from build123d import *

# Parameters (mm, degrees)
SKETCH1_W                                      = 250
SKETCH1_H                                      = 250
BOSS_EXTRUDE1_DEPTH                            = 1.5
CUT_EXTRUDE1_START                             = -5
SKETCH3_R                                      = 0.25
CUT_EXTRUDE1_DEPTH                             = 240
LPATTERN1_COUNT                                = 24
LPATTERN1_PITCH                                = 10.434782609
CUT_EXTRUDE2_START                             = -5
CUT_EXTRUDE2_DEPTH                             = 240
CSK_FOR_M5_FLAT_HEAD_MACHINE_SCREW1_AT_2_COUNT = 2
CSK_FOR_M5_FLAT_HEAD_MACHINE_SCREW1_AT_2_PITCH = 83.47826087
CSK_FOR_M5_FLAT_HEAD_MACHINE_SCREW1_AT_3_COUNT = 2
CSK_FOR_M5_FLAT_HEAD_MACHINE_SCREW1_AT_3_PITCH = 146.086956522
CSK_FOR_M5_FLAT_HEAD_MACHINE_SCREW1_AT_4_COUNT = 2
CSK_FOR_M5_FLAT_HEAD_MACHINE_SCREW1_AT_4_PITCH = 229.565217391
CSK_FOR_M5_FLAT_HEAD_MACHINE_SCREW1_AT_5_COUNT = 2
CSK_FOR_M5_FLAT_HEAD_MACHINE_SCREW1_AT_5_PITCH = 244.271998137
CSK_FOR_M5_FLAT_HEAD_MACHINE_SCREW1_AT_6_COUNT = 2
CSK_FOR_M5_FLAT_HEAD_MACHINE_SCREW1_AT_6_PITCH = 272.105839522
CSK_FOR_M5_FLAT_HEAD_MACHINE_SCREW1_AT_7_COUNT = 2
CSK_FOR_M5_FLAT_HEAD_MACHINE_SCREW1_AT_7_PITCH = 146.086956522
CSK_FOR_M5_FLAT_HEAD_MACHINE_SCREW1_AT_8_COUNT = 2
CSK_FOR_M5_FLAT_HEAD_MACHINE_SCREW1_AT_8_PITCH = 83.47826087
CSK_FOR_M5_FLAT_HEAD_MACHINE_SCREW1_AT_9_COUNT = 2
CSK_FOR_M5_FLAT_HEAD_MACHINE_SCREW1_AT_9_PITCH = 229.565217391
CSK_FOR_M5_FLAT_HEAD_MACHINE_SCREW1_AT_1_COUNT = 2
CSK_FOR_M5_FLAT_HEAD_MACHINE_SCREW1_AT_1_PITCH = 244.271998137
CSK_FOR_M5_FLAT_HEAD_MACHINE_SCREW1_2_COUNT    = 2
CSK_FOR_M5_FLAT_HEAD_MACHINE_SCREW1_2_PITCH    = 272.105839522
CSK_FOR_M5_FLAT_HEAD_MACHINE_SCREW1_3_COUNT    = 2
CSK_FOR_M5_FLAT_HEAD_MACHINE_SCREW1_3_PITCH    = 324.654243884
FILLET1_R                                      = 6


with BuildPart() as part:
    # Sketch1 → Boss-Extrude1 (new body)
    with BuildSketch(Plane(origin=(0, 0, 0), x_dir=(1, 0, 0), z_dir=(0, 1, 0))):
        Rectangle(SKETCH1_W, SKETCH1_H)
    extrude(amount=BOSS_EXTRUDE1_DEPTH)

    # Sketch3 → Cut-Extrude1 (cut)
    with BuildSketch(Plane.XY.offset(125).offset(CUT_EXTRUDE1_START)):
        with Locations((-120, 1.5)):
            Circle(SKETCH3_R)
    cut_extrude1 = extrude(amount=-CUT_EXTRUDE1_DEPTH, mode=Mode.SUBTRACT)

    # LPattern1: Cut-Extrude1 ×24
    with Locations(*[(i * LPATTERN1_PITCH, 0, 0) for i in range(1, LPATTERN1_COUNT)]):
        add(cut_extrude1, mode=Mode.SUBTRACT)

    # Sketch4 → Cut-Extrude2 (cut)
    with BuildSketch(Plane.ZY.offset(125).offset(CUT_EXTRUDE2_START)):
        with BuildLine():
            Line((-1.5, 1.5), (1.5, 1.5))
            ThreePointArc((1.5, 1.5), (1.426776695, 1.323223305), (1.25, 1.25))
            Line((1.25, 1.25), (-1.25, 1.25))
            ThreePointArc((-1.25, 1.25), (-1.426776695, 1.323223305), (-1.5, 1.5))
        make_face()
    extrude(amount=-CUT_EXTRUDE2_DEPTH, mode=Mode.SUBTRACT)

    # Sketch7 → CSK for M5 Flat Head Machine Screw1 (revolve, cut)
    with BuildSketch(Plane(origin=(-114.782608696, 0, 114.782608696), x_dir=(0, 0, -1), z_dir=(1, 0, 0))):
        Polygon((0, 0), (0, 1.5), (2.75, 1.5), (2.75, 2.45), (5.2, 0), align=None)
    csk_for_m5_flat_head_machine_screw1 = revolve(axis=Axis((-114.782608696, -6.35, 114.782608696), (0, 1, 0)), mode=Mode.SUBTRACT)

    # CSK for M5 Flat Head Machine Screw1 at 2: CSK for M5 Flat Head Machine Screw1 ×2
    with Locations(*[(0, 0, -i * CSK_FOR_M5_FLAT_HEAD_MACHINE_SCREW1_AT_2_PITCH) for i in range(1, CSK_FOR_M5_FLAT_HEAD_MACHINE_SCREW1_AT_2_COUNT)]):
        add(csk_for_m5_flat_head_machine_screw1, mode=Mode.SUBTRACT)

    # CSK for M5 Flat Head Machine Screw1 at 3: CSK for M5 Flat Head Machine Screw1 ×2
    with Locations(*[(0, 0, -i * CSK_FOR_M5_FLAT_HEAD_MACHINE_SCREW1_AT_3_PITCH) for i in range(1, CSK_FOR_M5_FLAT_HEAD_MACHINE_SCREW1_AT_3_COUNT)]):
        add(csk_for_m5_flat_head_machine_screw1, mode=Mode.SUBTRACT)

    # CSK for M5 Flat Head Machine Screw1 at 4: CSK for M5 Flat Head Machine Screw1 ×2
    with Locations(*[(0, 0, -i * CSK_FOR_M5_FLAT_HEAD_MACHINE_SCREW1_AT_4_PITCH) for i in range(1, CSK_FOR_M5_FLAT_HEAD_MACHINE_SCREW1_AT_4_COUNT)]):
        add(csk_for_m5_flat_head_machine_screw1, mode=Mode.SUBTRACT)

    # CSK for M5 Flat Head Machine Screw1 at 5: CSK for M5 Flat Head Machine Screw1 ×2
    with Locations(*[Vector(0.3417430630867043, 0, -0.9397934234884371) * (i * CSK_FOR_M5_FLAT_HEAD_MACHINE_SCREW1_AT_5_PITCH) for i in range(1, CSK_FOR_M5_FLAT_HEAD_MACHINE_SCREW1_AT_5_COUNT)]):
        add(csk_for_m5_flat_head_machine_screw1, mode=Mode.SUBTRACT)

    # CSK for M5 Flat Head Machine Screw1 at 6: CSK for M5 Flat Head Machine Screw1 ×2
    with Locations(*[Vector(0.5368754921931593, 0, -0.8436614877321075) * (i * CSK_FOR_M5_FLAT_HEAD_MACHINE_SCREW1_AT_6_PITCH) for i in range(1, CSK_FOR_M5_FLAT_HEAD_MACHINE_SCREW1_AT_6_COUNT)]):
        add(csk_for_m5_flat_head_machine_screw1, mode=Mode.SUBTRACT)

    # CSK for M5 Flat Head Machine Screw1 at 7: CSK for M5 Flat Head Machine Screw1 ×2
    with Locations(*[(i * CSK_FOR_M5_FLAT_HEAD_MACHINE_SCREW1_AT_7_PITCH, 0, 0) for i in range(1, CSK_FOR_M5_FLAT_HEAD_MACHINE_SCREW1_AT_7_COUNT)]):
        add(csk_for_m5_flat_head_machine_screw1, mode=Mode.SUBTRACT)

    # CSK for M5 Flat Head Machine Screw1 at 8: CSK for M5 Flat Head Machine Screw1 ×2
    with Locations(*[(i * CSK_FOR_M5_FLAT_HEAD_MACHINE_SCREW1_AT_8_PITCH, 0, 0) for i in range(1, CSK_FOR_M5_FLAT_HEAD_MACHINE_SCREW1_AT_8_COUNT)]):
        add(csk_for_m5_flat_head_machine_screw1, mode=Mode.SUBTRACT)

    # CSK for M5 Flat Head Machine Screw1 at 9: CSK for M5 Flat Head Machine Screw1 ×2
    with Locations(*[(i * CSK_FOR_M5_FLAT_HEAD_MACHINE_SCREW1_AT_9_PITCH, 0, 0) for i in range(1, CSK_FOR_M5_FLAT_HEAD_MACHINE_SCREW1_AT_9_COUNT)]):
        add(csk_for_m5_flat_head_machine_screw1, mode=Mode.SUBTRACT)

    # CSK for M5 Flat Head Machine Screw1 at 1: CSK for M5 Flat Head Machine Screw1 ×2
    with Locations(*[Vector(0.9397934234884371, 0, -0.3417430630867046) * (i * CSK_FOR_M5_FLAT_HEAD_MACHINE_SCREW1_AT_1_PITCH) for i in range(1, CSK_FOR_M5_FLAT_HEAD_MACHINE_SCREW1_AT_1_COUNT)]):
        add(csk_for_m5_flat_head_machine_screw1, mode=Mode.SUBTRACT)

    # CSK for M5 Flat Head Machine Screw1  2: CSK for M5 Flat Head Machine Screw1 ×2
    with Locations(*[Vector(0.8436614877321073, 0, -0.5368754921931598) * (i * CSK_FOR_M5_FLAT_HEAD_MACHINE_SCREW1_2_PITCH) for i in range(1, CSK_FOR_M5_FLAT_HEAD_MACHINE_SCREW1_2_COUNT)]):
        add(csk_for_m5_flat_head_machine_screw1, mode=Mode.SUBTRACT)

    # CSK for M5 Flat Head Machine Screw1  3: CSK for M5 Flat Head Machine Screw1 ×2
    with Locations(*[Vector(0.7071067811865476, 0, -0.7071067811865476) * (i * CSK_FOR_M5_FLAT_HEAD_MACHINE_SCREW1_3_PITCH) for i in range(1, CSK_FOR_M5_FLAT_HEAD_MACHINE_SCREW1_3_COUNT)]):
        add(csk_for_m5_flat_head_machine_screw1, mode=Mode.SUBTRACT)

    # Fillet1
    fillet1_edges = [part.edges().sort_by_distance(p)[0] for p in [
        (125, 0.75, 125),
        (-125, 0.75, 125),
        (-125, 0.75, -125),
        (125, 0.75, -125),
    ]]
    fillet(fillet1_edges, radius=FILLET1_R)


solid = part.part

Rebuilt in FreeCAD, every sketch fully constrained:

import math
import FreeCAD as App
import Part
import Sketcher
from FreeCAD import Vector
Q = App.Units.Quantity


def edges_at(feature, points):
    """Names of the edges that pass closest to the given points."""
    edges = feature.Shape.Edges
    near = lambda p: min(range(len(edges)), key=lambda i: edges[i].distToShape(Part.Vertex(*p))[0])
    return sorted({f"Edge{near(p) + 1}" for p in points})

doc = App.newDocument("Part")
body = doc.addObject("PartDesign::Body", "Body")

sketch1 = body.newObject("Sketcher::SketchObject", "Sketch")
sketch1.AttachmentSupport = (doc.getObject("XZ_Plane"), [""])
sketch1.MapMode = "FlatFace"
sketch1.addGeometry(Part.LineSegment(Vector(-125, -125, 0), Vector(-125, 125, 0)), False)
sketch1.addGeometry(Part.LineSegment(Vector(-125, 125, 0), Vector(125, 125, 0)), False)
sketch1.addGeometry(Part.LineSegment(Vector(125, 125, 0), Vector(125, -125, 0)), False)
sketch1.addGeometry(Part.LineSegment(Vector(125, -125, 0), Vector(-125, -125, 0)), False)
sketch1.addConstraint(Sketcher.Constraint("Coincident", 0, 2, 1, 1))
sketch1.addConstraint(Sketcher.Constraint("Coincident", 1, 2, 2, 1))
sketch1.addConstraint(Sketcher.Constraint("Coincident", 2, 2, 3, 1))
sketch1.addConstraint(Sketcher.Constraint("Coincident", 3, 2, 0, 1))
sketch1.addConstraint(Sketcher.Constraint("Vertical", 0))
sketch1.addConstraint(Sketcher.Constraint("Horizontal", 1))
sketch1.addConstraint(Sketcher.Constraint("Vertical", 2))
sketch1.addConstraint(Sketcher.Constraint("Horizontal", 3))
sketch1.addConstraint(Sketcher.Constraint("Symmetric", 0, 2, 2, 2, -1, 1))
sketch1.addConstraint(Sketcher.Constraint("Equal", 3, 0))
sketch1.addConstraint(Sketcher.Constraint("DistanceX", 1, 1, 1, 2, Q("250 mm")))
pad1 = body.newObject("PartDesign::Pad", "Pad")
pad1.Profile = sketch1
pad1.Length = 1.5
pad1.Reversed = True

sketch2 = body.newObject("Sketcher::SketchObject", "Sketch001")
sketch2.AttachmentSupport = (doc.getObject("XY_Plane"), [""])
sketch2.MapMode = "FlatFace"
sketch2.AttachmentOffset = App.Placement(Vector(0, 0, 120), App.Rotation())
sketch2.addGeometry(Part.Circle(Vector(-120, 1.5, 0), Vector(0, 0, 1), 0.25), False)
sketch2.addConstraint(Sketcher.Constraint("Diameter", 0, Q("0.5 mm")))
sketch2.addConstraint(Sketcher.Constraint("DistanceX", 0, 3, -1, 1, Q("120 mm")))
sketch2.addConstraint(Sketcher.Constraint("DistanceY", -1, 1, 0, 3, Q("1.5 mm")))
pocket1 = body.newObject("PartDesign::Pocket", "Pocket")
pocket1.Profile = sketch2
pocket1.Length = 240
doc.recompute()

linearpattern = body.newObject("PartDesign::LinearPattern", "LinearPattern")
linearpattern.Originals = [pocket1]
linearpattern.Direction = (doc.getObject("X_Axis"), [""])
linearpattern.Mode = "offset"
linearpattern.Offset = 10.434783
linearpattern.Occurrences = 24
body.Tip = linearpattern

sketch3 = body.newObject("Sketcher::SketchObject", "Sketch002")
sketch3.AttachmentSupport = (doc.getObject("YZ_Plane"), [""])
sketch3.MapMode = "FlatFace"
sketch3.AttachmentOffset = App.Placement(Vector(0, 0, -120), App.Rotation())
sketch3.addGeometry(Part.LineSegment(Vector(1.5, 1.5, 0), Vector(1.5, -1.5, 0)), False)
sketch3.addGeometry(Part.ArcOfCircle(Part.Circle(Vector(1.5, -1.25, 0), Vector(0, 0, 1), 0.25), math.radians(-180), math.radians(-90)), False)
sketch3.addGeometry(Part.LineSegment(Vector(1.25, -1.25, 0), Vector(1.25, 1.25, 0)), False)
sketch3.addGeometry(Part.ArcOfCircle(Part.Circle(Vector(1.5, 1.25, 0), Vector(0, 0, 1), 0.25), math.radians(90), math.radians(180)), False)
sketch3.addConstraint(Sketcher.Constraint("Coincident", 0, 2, 1, 2))
sketch3.addConstraint(Sketcher.Constraint("Tangent", 1, 1, 2, 1))
sketch3.addConstraint(Sketcher.Constraint("Tangent", 2, 2, 3, 2))
sketch3.addConstraint(Sketcher.Constraint("Coincident", 3, 1, 0, 1))
sketch3.addConstraint(Sketcher.Constraint("Vertical", 0))
sketch3.addConstraint(Sketcher.Constraint("Vertical", 2))
sketch3.addConstraint(Sketcher.Constraint("Equal", 1, 3))
sketch3.addConstraint(Sketcher.Constraint("Vertical", 3, 3, 0, 2))
sketch3.addConstraint(Sketcher.Constraint("DistanceY", 0, 2, 0, 1, Q("3 mm")))
sketch3.addConstraint(Sketcher.Constraint("Radius", 1, Q("0.25 mm")))
sketch3.addConstraint(Sketcher.Constraint("DistanceX", -1, 1, 1, 3, Q("1.5 mm")))
sketch3.addConstraint(Sketcher.Constraint("DistanceY", 0, 2, -1, 1, Q("1.5 mm")))
pocket2 = body.newObject("PartDesign::Pocket", "Pocket001")
pocket2.Profile = sketch3
pocket2.Length = 240
pocket2.Reversed = True

sketch4 = body.newObject("Sketcher::SketchObject", "Sketch003")
sketch4.AttachmentSupport = (doc.getObject("YZ_Plane"), [""])
sketch4.MapMode = "FlatFace"
sketch4.AttachmentOffset = App.Placement(Vector(0, 0, -114.782609), App.Rotation())
sketch4.addGeometry(Part.LineSegment(Vector(1.5, 114.8, 0), Vector(0, 114.8, 0)), False)
sketch4.addGeometry(Part.LineSegment(Vector(0, 114.8, 0), Vector(0, 109.6, 0)), False)
sketch4.addGeometry(Part.LineSegment(Vector(0, 109.6, 0), Vector(2.5, 112, 0)), False)
sketch4.addGeometry(Part.LineSegment(Vector(2.5, 112, 0), Vector(1.5, 112, 0)), False)
sketch4.addGeometry(Part.LineSegment(Vector(1.5, 112, 0), Vector(1.5, 114.8, 0)), False)
sketch4.addGeometry(Part.LineSegment(Vector(0, 114.8, 0), Vector(2.5, 114.8, 0)), True)
sketch4.addConstraint(Sketcher.Constraint("Coincident", 0, 2, 1, 1))
sketch4.addConstraint(Sketcher.Constraint("Coincident", 1, 2, 2, 1))
sketch4.addConstraint(Sketcher.Constraint("Coincident", 2, 2, 3, 1))
sketch4.addConstraint(Sketcher.Constraint("Coincident", 3, 2, 4, 1))
sketch4.addConstraint(Sketcher.Constraint("Coincident", 4, 2, 0, 1))
sketch4.addConstraint(Sketcher.Constraint("Horizontal", 0))
sketch4.addConstraint(Sketcher.Constraint("Vertical", 1))
sketch4.addConstraint(Sketcher.Constraint("Horizontal", 3))
sketch4.addConstraint(Sketcher.Constraint("Vertical", 4))
sketch4.addConstraint(Sketcher.Constraint("Horizontal", 5))
sketch4.addConstraint(Sketcher.Constraint("Coincident", 5, 1, 0, 2))
sketch4.addConstraint(Sketcher.Constraint("PointOnObject", 0, 2, -2))
sketch4.addConstraint(Sketcher.Constraint("Vertical", 2, 2, 5, 2))
sketch4.addConstraint(Sketcher.Constraint("Angle", 2, Q("45 deg")))
sketch4.addConstraint(Sketcher.Constraint("DistanceX", 0, 2, 0, 1, Q("1.5 mm")))
sketch4.addConstraint(Sketcher.Constraint("DistanceY", 1, 2, 1, 1, Q("5.2 mm")))
sketch4.addConstraint(Sketcher.Constraint("DistanceX", 3, 2, 3, 1, Q("0.95 mm")))
sketch4.addConstraint(Sketcher.Constraint("DistanceY", -1, 1, 0, 2, Q("114.782609 mm")))
groove = body.newObject("PartDesign::Groove", "Groove")
groove.Profile = sketch4
groove.ReferenceAxis = (sketch4, ["Axis0"])
groove.Angle = 360
doc.recompute()

linearpattern2 = body.newObject("PartDesign::LinearPattern", "LinearPattern001")
linearpattern2.Originals = [groove]
linearpattern2.Direction = (doc.getObject("Z_Axis"), [""])
linearpattern2.Mode = "offset"
linearpattern2.Offset = 83.478261
linearpattern2.Occurrences = 2
linearpattern2.Reversed = True
body.Tip = linearpattern2
doc.recompute()

linearpattern3 = body.newObject("PartDesign::LinearPattern", "LinearPattern002")
linearpattern3.Originals = [groove]
linearpattern3.Direction = (doc.getObject("Z_Axis"), [""])
linearpattern3.Mode = "offset"
linearpattern3.Offset = 146.086957
linearpattern3.Occurrences = 2
linearpattern3.Reversed = True
body.Tip = linearpattern3
doc.recompute()

linearpattern4 = body.newObject("PartDesign::LinearPattern", "LinearPattern003")
linearpattern4.Originals = [groove]
linearpattern4.Direction = (doc.getObject("Z_Axis"), [""])
linearpattern4.Mode = "offset"
linearpattern4.Offset = 229.565217
linearpattern4.Occurrences = 2
linearpattern4.Reversed = True
body.Tip = linearpattern4
doc.recompute()

datumline = body.newObject("PartDesign::Line", "DatumLine")
datumline.Placement = App.Placement(Vector(0, 0, 0), App.Rotation(Vector(0, 0, 1), Vector(0.341743063, 0, -0.939793423)))
linearpattern5 = body.newObject("PartDesign::LinearPattern", "LinearPattern004")
linearpattern5.Originals = [groove]
linearpattern5.Direction = (datumline, [""])
linearpattern5.Mode = "offset"
linearpattern5.Offset = 244.271998
linearpattern5.Occurrences = 2
body.Tip = linearpattern5
doc.recompute()

datumline2 = body.newObject("PartDesign::Line", "DatumLine001")
datumline2.Placement = App.Placement(Vector(0, 0, 0), App.Rotation(Vector(0, 0, 1), Vector(0.536875492, 0, -0.843661488)))
linearpattern6 = body.newObject("PartDesign::LinearPattern", "LinearPattern005")
linearpattern6.Originals = [groove]
linearpattern6.Direction = (datumline2, [""])
linearpattern6.Mode = "offset"
linearpattern6.Offset = 272.10584
linearpattern6.Occurrences = 2
body.Tip = linearpattern6
doc.recompute()

linearpattern7 = body.newObject("PartDesign::LinearPattern", "LinearPattern006")
linearpattern7.Originals = [groove]
linearpattern7.Direction = (doc.getObject("X_Axis"), [""])
linearpattern7.Mode = "offset"
linearpattern7.Offset = 146.086957
linearpattern7.Occurrences = 2
body.Tip = linearpattern7
doc.recompute()

linearpattern8 = body.newObject("PartDesign::LinearPattern", "LinearPattern007")
linearpattern8.Originals = [groove]
linearpattern8.Direction = (doc.getObject("X_Axis"), [""])
linearpattern8.Mode = "offset"
linearpattern8.Offset = 83.478261
linearpattern8.Occurrences = 2
body.Tip = linearpattern8
doc.recompute()

linearpattern9 = body.newObject("PartDesign::LinearPattern", "LinearPattern008")
linearpattern9.Originals = [groove]
linearpattern9.Direction = (doc.getObject("X_Axis"), [""])
linearpattern9.Mode = "offset"
linearpattern9.Offset = 229.565217
linearpattern9.Occurrences = 2
body.Tip = linearpattern9
doc.recompute()

datumline3 = body.newObject("PartDesign::Line", "DatumLine002")
datumline3.Placement = App.Placement(Vector(0, 0, 0), App.Rotation(Vector(0, 0, 1), Vector(0.939793423, 0, -0.341743063)))
linearpattern10 = body.newObject("PartDesign::LinearPattern", "LinearPattern009")
linearpattern10.Originals = [groove]
linearpattern10.Direction = (datumline3, [""])
linearpattern10.Mode = "offset"
linearpattern10.Offset = 244.271998
linearpattern10.Occurrences = 2
body.Tip = linearpattern10
doc.recompute()

datumline4 = body.newObject("PartDesign::Line", "DatumLine003")
datumline4.Placement = App.Placement(Vector(0, 0, 0), App.Rotation(Vector(0, 0, 1), Vector(0.843661488, 0, -0.536875492)))
linearpattern11 = body.newObject("PartDesign::LinearPattern", "LinearPattern010")
linearpattern11.Originals = [groove]
linearpattern11.Direction = (datumline4, [""])
linearpattern11.Mode = "offset"
linearpattern11.Offset = 272.10584
linearpattern11.Occurrences = 2
body.Tip = linearpattern11
doc.recompute()

datumline5 = body.newObject("PartDesign::Line", "DatumLine004")
datumline5.Placement = App.Placement(Vector(0, 0, 0), App.Rotation(Vector(0, 0, 1), Vector(0.707106781, 0, -0.707106781)))
linearpattern12 = body.newObject("PartDesign::LinearPattern", "LinearPattern011")
linearpattern12.Originals = [groove]
linearpattern12.Direction = (datumline5, [""])
linearpattern12.Mode = "offset"
linearpattern12.Offset = 324.654244
linearpattern12.Occurrences = 2
body.Tip = linearpattern12
doc.recompute()

fillet = body.newObject("PartDesign::Fillet", "Fillet")
fillet.Base = (linearpattern12, edges_at(linearpattern12, [
    (125, 0.75, 125),
    (-125, 0.75, 125),
    (-125, 0.75, -125),
    (125, 0.75, -125),
]))
fillet.Radius = 6

doc.recompute()
